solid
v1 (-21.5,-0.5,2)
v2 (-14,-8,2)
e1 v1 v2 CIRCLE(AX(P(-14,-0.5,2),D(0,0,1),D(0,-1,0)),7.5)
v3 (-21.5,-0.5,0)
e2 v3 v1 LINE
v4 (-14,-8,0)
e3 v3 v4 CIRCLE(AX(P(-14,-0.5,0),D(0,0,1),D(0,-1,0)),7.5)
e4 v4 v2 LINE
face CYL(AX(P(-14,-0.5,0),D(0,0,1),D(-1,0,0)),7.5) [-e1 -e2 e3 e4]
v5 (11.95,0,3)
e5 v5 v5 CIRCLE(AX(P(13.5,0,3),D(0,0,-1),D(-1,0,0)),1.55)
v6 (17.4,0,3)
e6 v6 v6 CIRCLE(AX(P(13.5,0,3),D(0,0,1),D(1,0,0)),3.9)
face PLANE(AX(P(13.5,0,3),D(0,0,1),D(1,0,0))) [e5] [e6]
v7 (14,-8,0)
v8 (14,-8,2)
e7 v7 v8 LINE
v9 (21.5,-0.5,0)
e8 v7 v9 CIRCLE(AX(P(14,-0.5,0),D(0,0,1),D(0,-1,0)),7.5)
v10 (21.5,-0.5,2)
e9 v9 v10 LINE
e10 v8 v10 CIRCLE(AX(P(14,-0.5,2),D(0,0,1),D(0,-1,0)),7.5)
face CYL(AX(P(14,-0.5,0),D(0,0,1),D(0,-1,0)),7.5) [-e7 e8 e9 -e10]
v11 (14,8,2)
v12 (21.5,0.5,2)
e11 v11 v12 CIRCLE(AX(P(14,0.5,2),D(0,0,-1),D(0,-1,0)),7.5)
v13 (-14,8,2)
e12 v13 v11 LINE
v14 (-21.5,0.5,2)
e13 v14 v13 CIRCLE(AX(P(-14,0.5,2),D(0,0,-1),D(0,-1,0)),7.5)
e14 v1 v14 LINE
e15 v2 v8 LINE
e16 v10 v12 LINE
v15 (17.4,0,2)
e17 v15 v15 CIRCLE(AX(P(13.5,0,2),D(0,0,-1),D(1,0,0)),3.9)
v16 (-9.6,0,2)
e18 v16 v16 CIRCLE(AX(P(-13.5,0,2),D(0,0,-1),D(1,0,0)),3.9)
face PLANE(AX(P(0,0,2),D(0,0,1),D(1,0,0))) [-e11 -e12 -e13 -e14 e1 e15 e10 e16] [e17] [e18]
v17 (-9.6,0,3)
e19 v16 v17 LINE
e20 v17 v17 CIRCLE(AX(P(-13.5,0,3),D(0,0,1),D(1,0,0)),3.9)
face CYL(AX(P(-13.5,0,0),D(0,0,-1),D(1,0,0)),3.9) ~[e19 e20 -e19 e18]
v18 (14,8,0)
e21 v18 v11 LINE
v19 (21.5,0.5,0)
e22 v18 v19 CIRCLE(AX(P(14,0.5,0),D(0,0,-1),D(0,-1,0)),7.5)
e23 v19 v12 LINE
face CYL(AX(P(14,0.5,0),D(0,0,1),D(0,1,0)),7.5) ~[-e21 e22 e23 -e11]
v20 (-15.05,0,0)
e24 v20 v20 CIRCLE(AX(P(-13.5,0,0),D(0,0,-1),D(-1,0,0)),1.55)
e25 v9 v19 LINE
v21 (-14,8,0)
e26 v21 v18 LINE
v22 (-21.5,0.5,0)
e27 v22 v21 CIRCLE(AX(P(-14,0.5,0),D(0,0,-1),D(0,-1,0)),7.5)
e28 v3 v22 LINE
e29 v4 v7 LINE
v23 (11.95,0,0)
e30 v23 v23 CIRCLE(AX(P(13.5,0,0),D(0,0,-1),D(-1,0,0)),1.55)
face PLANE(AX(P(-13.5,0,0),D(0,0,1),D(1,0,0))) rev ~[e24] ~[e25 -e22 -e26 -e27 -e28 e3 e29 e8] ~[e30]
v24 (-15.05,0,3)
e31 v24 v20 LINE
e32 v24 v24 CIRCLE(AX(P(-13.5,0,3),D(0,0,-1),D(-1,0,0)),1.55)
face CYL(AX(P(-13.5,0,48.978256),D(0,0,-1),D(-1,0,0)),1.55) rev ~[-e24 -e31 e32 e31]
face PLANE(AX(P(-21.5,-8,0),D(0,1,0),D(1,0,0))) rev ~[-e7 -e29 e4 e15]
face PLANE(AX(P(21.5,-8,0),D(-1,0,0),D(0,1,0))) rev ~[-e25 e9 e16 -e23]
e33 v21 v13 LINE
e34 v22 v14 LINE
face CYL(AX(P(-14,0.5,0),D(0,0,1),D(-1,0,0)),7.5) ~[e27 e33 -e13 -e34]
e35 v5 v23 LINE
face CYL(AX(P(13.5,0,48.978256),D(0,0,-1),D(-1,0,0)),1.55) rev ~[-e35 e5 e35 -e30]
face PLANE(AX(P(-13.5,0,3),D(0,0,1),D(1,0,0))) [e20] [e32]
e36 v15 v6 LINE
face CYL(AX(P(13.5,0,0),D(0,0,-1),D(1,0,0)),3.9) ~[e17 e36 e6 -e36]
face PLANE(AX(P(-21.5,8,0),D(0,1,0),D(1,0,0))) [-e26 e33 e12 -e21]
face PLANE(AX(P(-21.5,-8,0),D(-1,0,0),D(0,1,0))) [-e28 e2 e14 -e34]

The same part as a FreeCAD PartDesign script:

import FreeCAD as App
import Part
import Sketcher


def edges_at(feature, points):
    """Names of the edges that pass closest to the given points."""
    edges = feature.Shape.Edges
    near = lambda p: min(range(len(edges)), key=lambda i: edges[i].distToShape(Part.Vertex(*p))[0])
    return sorted({f"Edge{near(p) + 1}" for p in points})

doc = App.newDocument("Part")
body = doc.addObject("PartDesign::Body", "Body")

# Sketch on XY plane
sketch1 = doc.addObject("Sketcher::SketchObject", "Sketch")
body.addObject(sketch1)
sketch1.AttachmentSupport = (doc.XY_Plane, [""])
sketch1.MapMode = "FlatFace"
sketch1.addGeometry([
    Part.LineSegment(App.Vector(-22, 8, 0), App.Vector(-22, -8, 0)),
    Part.LineSegment(App.Vector(-22, -8, 0), App.Vector(22, -8, 0)),
    Part.LineSegment(App.Vector(22, -8, 0), App.Vector(22, 8, 0)),
    Part.LineSegment(App.Vector(22, 8, 0), App.Vector(-22, 8, 0)),
], False)
sketch1.addConstraint([
    Sketcher.Constraint("Coincident", 0, 2, 1, 1),
    Sketcher.Constraint("Coincident", 1, 2, 2, 1),
    Sketcher.Constraint("Coincident", 2, 2, 3, 1),
    Sketcher.Constraint("Coincident", 3, 2, 0, 1),
    Sketcher.Constraint("Vertical", 0),
    Sketcher.Constraint("Horizontal", 1),
    Sketcher.Constraint("Vertical", 2),
    Sketcher.Constraint("Horizontal", 3),
    Sketcher.Constraint("Symmetric", 0, 2, 2, 2, -1, 1),
    Sketcher.Constraint("DistanceX", 1, 1, 1, 2, 43.0),
    Sketcher.Constraint("DistanceY", 0, 2, 0, 1, 16.0),
])
pad1 = doc.addObject("PartDesign::Pad", "Pad")
body.addObject(pad1)
pad1.Profile = sketch1
pad1.Length = 2

# Sketch on XY plane
sketch2 = doc.addObject("Sketcher::SketchObject", "Sketch001")
body.addObject(sketch2)
sketch2.AttachmentSupport = (doc.XY_Plane, [""])
sketch2.MapMode = "FlatFace"
sketch2.addGeometry([
    Part.Circle(App.Vector(-13.5, 0, 0), App.Vector(0, 0, 1), 3.9),
    Part.Circle(App.Vector(13.5, 0, 0), App.Vector(0, 0, 1), 3.9),
], False)
sketch2.addConstraint([
    Sketcher.Constraint("Equal", 0, 1),
    Sketcher.Constraint("Symmetric", 0, 3, 1, 3, -1, 1),
    Sketcher.Constraint("PointOnObject", 0, 3, -1),
    Sketcher.Constraint("Diameter", 0, 7.8),
    Sketcher.Constraint("DistanceX", 0, 3, 1, 3, 27.0),
])
pad2 = doc.addObject("PartDesign::Pad", "Pad001")
body.addObject(pad2)
pad2.Profile = sketch2
pad2.Length = 3

# Sketch on XY plane
sketch3 = doc.addObject("Sketcher::SketchObject", "Sketch002")
body.addObject(sketch3)
sketch3.AttachmentSupport = (doc.XY_Plane, [""])
sketch3.MapMode = "FlatFace"
sketch3.AttachmentOffset = App.Placement(App.Vector(0, 0, 3), App.Rotation())
sketch3.addGeometry([
    Part.Circle(App.Vector(-13.5, 0, 0), App.Vector(0, 0, 1), 1.6),
    Part.Circle(App.Vector(13.5, 0, 0), App.Vector(0, 0, 1), 1.6),
], False)
sketch3.addConstraint([
    Sketcher.Constraint("Equal", 0, 1),
    Sketcher.Constraint("Symmetric", 0, 3, 1, 3, -1, 1),
    Sketcher.Constraint("PointOnObject", 0, 3, -1),
    Sketcher.Constraint("Diameter", 0, 3.1),
    Sketcher.Constraint("DistanceX", 0, 3, 1, 3, 27.0),
])
doc.recompute()
hole = doc.addObject("PartDesign::Hole", "Hole")
body.addObject(hole)
hole.Profile = sketch3
hole.ThreadType = "None"
hole.Diameter = 3.1
hole.DepthType = "ThroughAll"
doc.recompute()

fillet = doc.addObject("PartDesign::Fillet", "Fillet")
body.addObject(fillet)
fillet.Base = (hole, edges_at(hole, [
    (-21.5, -8, 1),
    (21.5, -8, 1),
    (21.5, 8, 1),
    (-21.5, 8, 1),
]))
fillet.Radius = 7.5

doc.recompute()
